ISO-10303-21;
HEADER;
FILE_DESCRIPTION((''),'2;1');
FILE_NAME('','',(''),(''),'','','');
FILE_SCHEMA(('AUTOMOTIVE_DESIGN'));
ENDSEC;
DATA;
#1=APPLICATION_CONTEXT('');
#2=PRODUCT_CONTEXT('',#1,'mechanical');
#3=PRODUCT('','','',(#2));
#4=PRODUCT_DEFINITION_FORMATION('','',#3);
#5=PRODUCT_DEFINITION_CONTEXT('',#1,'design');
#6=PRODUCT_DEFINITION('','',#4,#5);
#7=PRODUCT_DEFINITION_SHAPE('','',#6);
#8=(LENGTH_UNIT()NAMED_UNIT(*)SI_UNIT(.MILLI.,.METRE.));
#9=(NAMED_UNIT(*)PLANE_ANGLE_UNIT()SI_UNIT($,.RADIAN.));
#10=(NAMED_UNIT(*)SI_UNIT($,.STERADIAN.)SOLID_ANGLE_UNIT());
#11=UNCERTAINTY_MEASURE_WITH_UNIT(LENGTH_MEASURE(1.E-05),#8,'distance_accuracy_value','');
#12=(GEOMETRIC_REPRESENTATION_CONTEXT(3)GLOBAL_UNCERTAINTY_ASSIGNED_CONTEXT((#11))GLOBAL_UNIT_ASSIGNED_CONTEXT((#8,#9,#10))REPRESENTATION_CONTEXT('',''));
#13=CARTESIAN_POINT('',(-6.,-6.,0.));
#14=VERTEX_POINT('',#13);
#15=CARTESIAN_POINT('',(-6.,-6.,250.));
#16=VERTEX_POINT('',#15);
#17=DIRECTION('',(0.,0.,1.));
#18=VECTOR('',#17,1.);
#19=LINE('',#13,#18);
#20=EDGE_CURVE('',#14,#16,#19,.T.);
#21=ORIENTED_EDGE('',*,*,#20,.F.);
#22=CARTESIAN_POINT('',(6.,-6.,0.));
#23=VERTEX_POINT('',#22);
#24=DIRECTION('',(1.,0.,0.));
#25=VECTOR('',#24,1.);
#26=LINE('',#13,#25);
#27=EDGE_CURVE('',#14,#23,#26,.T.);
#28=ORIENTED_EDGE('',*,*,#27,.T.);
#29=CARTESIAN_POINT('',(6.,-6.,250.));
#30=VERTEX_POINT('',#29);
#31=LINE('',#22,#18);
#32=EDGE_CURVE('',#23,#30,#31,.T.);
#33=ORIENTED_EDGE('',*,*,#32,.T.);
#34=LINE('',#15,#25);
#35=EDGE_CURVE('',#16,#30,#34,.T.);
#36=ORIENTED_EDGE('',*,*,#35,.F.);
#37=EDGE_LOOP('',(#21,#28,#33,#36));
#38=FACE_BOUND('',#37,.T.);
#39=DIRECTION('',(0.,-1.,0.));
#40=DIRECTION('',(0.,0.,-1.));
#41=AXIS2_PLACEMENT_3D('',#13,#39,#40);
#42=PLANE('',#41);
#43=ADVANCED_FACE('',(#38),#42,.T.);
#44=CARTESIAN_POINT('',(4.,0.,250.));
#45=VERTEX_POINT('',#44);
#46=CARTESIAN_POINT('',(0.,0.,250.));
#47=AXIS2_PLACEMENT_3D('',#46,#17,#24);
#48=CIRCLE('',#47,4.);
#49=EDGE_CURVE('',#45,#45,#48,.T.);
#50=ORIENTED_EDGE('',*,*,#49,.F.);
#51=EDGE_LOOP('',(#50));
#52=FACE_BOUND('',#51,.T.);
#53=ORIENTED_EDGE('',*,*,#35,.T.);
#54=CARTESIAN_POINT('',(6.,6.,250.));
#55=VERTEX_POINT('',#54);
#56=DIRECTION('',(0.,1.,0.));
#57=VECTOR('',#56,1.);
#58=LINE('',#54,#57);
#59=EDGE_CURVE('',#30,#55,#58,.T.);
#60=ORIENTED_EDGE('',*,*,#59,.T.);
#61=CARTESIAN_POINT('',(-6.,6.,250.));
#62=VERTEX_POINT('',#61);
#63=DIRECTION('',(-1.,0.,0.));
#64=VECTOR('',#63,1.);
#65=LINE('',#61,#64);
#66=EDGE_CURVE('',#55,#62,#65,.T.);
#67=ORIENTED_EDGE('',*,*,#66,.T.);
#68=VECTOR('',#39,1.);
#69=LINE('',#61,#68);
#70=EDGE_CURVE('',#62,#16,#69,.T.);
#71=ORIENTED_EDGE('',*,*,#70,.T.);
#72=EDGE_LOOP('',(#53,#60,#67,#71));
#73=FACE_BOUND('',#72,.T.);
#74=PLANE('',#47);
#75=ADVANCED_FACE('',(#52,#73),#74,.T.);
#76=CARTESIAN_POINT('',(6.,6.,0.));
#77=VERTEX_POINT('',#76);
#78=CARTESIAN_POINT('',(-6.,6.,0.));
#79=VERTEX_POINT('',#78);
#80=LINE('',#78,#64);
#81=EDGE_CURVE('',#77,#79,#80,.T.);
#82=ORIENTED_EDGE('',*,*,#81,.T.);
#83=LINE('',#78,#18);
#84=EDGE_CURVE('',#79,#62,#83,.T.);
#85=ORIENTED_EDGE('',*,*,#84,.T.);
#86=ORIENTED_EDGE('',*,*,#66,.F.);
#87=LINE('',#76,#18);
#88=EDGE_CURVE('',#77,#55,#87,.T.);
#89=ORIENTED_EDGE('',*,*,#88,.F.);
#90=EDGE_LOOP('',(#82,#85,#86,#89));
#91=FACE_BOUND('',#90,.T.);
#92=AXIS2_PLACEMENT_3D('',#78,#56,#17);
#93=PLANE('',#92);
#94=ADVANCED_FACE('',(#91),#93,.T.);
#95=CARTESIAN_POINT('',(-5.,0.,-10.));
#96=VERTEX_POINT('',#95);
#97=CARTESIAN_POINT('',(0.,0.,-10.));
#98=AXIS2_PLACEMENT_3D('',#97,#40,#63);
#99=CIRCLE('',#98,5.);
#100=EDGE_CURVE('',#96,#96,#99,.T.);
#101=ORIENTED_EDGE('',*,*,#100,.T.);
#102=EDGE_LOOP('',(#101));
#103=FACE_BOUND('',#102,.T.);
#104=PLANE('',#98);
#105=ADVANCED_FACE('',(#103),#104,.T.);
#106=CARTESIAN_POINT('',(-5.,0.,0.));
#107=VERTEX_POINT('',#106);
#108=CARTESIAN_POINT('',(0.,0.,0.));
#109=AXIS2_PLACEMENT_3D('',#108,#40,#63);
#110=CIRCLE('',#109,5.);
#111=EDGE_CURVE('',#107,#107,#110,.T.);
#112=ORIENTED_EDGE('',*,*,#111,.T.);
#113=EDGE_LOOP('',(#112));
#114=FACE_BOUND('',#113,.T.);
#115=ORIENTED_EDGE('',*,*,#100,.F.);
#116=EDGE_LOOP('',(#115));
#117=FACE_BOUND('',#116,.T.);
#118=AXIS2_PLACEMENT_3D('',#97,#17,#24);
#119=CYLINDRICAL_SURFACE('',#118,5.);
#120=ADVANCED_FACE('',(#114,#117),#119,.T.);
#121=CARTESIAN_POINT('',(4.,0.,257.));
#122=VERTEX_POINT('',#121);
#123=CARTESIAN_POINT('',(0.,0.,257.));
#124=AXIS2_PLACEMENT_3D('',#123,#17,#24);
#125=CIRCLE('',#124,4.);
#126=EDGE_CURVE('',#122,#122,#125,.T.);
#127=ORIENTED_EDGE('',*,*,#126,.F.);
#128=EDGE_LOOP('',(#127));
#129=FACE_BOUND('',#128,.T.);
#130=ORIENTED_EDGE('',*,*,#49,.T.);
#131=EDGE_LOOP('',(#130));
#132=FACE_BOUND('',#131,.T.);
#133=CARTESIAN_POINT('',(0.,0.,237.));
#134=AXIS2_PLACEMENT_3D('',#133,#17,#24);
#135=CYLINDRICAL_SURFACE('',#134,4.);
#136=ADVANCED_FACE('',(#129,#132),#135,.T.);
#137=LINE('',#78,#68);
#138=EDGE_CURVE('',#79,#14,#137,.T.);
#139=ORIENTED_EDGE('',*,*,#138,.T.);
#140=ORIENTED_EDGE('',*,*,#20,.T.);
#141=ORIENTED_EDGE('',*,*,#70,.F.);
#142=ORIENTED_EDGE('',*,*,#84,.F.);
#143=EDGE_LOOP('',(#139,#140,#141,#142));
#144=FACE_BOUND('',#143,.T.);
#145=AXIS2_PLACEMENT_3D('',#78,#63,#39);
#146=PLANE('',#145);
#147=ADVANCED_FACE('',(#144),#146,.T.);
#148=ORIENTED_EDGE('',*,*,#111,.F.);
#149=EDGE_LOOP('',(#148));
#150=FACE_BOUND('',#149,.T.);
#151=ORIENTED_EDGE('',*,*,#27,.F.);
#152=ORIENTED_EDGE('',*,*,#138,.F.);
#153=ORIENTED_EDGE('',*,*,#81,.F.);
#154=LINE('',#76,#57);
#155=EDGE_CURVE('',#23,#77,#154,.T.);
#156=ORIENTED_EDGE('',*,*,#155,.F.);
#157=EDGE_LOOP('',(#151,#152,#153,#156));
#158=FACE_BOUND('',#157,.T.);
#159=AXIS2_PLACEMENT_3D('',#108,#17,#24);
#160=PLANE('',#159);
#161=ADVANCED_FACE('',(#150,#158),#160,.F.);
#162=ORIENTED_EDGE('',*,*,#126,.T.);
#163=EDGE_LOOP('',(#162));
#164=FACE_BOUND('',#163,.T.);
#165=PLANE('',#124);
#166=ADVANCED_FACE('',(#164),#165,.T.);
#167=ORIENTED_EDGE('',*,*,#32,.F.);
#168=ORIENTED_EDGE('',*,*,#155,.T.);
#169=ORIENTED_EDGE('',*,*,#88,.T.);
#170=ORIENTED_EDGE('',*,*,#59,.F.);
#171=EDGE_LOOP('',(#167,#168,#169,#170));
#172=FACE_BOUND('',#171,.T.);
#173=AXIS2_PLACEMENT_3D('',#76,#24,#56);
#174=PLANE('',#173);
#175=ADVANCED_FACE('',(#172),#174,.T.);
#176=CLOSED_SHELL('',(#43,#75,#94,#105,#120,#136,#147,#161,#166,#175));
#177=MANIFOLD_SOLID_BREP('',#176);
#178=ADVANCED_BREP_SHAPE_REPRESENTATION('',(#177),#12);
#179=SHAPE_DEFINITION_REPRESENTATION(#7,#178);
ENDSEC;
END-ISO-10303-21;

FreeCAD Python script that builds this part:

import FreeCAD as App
import Part
import Sketcher
Q = App.Units.Quantity


def add_polygon(sketch, points):
    """Adds a closed chain of lines whose ends are joined by coincident constraints."""
    first, n = sketch.GeometryCount, len(points)
    for a, b in zip(points, points[1:] + points[:1]):
        sketch.addGeometry(Part.LineSegment(App.Vector(*a, 0), App.Vector(*b, 0)), False)
    for i in range(n):
        sketch.addConstraint(Sketcher.Constraint("Coincident", first + i, 2, first + (i + 1) % n, 1))

doc = App.newDocument("Part")
params = doc.addObject("Spreadsheet::Sheet", "Params")
for row, (alias, value) in enumerate([
    ("sketch1_width", "5 mm"),
    ("sketch1_length", "5 mm"),
    ("pad1_length", "250 mm"),
    ("sketch2_diameter", "5 mm"),
    ("pad2_length", "10 mm"),
    ("sketch3_diameter", "10 mm"),
    ("pad3_length", "10 mm"),
    ("sketch4_width", "2 mm"),
    ("pocket1_length", "10 mm"),
    ("sketch5_diameter", "5 mm"),
    ("pad4_length", "5 mm"),
    ("sketch6_diameter", "5 mm"),
    ("pad5_length", "5 mm"),
    ("sketch7_diameter", "5 mm"),
    ("pocket2_length", "3 mm"),
    ("sketch8_diameter", "5 mm"),
    ("pocket3_length", "3 mm"),
    ("sketch9_diameter", "10 mm"),
    ("pad6_length", "10 mm"),
    ("sketch10_diameter", "5 mm"),
    ("pad7_length", "1 mm"),
    ("sketch11_width", "12 mm"),
    ("pad8_length", "250 mm"),
    ("sketch12_diameter", "8 mm"),
    ("pad9_length", "20 mm"),
], start=1):
    params.set(f"A{row}", alias)
    params.set(f"B{row}", "=" + value)
    params.setAlias(f"B{row}", alias)

body = doc.addObject("PartDesign::Body", "Body")

# Sketch on XY plane
sketch1 = doc.addObject("Sketcher::SketchObject", "Sketch")
body.addObject(sketch1)
sketch1.AttachmentSupport = (doc.XY_Plane, [""])
sketch1.MapMode = "FlatFace"
add_polygon(sketch1, [(5, 0), (2, 4), (-2, 4), (-5, 0), (-2, -4), (2, -4)])  # lines 0-5
sketch1.addConstraint(Sketcher.Constraint("Horizontal", 1))
sketch1.addConstraint(Sketcher.Constraint("Horizontal", 4))
sketch1.addConstraint(Sketcher.Constraint("Symmetric", 0, 2, 3, 2, -1, 1))
sketch1.addConstraint(Sketcher.Constraint("Symmetric", 2, 2, 5, 2, -1, 1))
sketch1.addConstraint(Sketcher.Constraint("PointOnObject", 2, 2, -1))
sketch1.addConstraint(Sketcher.Constraint("Parallel", 2, 5))
sketch1.addConstraint(Sketcher.Constraint("Vertical", 1, 2, 3, 2))
sketch1.addConstraint(Sketcher.Constraint("DistanceX", 1, 2, 1, 1, 5.0))
sketch1.addConstraint(Sketcher.Constraint("Angle", 0, Q("120 deg")))
sketch1.addConstraint(Sketcher.Constraint("Distance", 0, 5.0))
sketch1.setExpression("Constraints[13]", "Params.sketch1_width")
sketch1.setExpression("Constraints[15]", "Params.sketch1_length")
pad1 = doc.addObject("PartDesign::Pad", "Pad")
body.addObject(pad1)
pad1.Profile = sketch1
pad1.setExpression("Length", "Params.pad1_length")

# Sketch on XY plane
sketch2 = doc.addObject("Sketcher::SketchObject", "Sketch001")
body.addObject(sketch2)
sketch2.AttachmentSupport = (doc.XY_Plane, [""])
sketch2.MapMode = "FlatFace"
sketch2.AttachmentOffset = App.Placement(App.Vector(0, 0, 250), App.Rotation())
sketch2.addGeometry(Part.Circle(App.Vector(0, 0, 0), App.Vector(0, 0, 1), 2.5), False)
sketch2.addConstraint(Sketcher.Constraint("Coincident", 0, 3, -1, 1))
sketch2.addConstraint(Sketcher.Constraint("Diameter", 0, 5.0))
sketch2.setExpression("Constraints[1]", "Params.sketch2_diameter")
pad2 = doc.addObject("PartDesign::Pad", "Pad001")
body.addObject(pad2)
pad2.Profile = sketch2
pad2.setExpression("Length", "Params.pad2_length")

# Sketch on XY plane
sketch3 = doc.addObject("Sketcher::SketchObject", "Sketch002")
body.addObject(sketch3)
sketch3.AttachmentSupport = (doc.XY_Plane, [""])
sketch3.MapMode = "FlatFace"
sketch3.addGeometry(Part.Circle(App.Vector(0, 0, 0), App.Vector(0, 0, 1), 5), False)
sketch3.addConstraint(Sketcher.Constraint("Coincident", 0, 3, -1, 1))
sketch3.addConstraint(Sketcher.Constraint("Diameter", 0, 10.0))
sketch3.setExpression("Constraints[1]", "Params.sketch3_diameter")
pad3 = doc.addObject("PartDesign::Pad", "Pad002")
body.addObject(pad3)
pad3.Profile = sketch3
pad3.setExpression("Length", "Params.pad3_length")
pad3.Reversed = True

# Sketch on XY plane
sketch4 = doc.addObject("Sketcher::SketchObject", "Sketch003")
body.addObject(sketch4)
sketch4.AttachmentSupport = (doc.XY_Plane, [""])
sketch4.MapMode = "FlatFace"
sketch4.AttachmentOffset = App.Placement(App.Vector(0, 0, 260), App.Rotation())
add_polygon(sketch4, [(-1, 3.3), (-1, 1.5), (1, 1.5), (1, 3.3)])  # lines 0-3
sketch4.addConstraint(Sketcher.Constraint("Vertical", 0))
sketch4.addConstraint(Sketcher.Constraint("Horizontal", 1))
sketch4.addConstraint(Sketcher.Constraint("Vertical", 2))
sketch4.addConstraint(Sketcher.Constraint("Horizontal", 3))
sketch4.addConstraint(Sketcher.Constraint("DistanceX", 1, 1, 1, 2, 2.0))
sketch4.addConstraint(Sketcher.Constraint("DistanceX", 0, 2, -1, 1, 1.0))
sketch4.addConstraint(Sketcher.Constraint("DistanceY", -1, 1, 0, 2, 1.5))
sketch4.addConstraint(Sketcher.Constraint("DistanceY", 0, 2, 0, 1, 1.835574))
sketch4.setExpression("Constraints[8]", "Params.sketch4_width")
pocket1 = doc.addObject("PartDesign::Pocket", "Pocket")
body.addObject(pocket1)
pocket1.Profile = sketch4
pocket1.setExpression("Length", "Params.pocket1_length")

# Sketch on XY plane
sketch5 = doc.addObject("Sketcher::SketchObject", "Sketch004")
body.addObject(sketch5)
sketch5.AttachmentSupport = (doc.XY_Plane, [""])
sketch5.MapMode = "FlatFace"
sketch5.AttachmentOffset = App.Placement(App.Vector(0, 0, 255), App.Rotation())
sketch5.addGeometry(Part.Circle(App.Vector(0, 0, 0), App.Vector(0, 0, 1), 2.5), False)
sketch5.addConstraint(Sketcher.Constraint("Coincident", 0, 3, -1, 1))
sketch5.addConstraint(Sketcher.Constraint("Diameter", 0, 5.0))
sketch5.setExpression("Constraints[1]", "Params.sketch5_diameter")
pad4 = doc.addObject("PartDesign::Pad", "Pad003")
body.addObject(pad4)
pad4.Profile = sketch5
pad4.setExpression("Length", "Params.pad4_length")

# Sketch on XY plane
sketch6 = doc.addObject("Sketcher::SketchObject", "Sketch005")
body.addObject(sketch6)
sketch6.AttachmentSupport = (doc.XY_Plane, [""])
sketch6.MapMode = "FlatFace"
sketch6.AttachmentOffset = App.Placement(App.Vector(0, 0, -10), App.Rotation())
sketch6.addGeometry(Part.Circle(App.Vector(0, 0, 0), App.Vector(0, 0, 1), 2.5), False)
sketch6.addConstraint(Sketcher.Constraint("Coincident", 0, 3, -1, 1))
sketch6.addConstraint(Sketcher.Constraint("Diameter", 0, 5.0))
sketch6.setExpression("Constraints[1]", "Params.sketch6_diameter")
pad5 = doc.addObject("PartDesign::Pad", "Pad004")
body.addObject(pad5)
pad5.Profile = sketch6
pad5.setExpression("Length", "Params.pad5_length")

# Sketch on XY plane
sketch7 = doc.addObject("Sketcher::SketchObject", "Sketch006")
body.addObject(sketch7)
sketch7.AttachmentSupport = (doc.XY_Plane, [""])
sketch7.MapMode = "FlatFace"
sketch7.AttachmentOffset = App.Placement(App.Vector(0, 0, -10), App.Rotation())
sketch7.addGeometry(Part.Circle(App.Vector(0, 0, 0), App.Vector(0, 0, 1), 2.5), False)
sketch7.addConstraint(Sketcher.Constraint("Coincident", 0, 3, -1, 1))
sketch7.addConstraint(Sketcher.Constraint("Diameter", 0, 5.0))
sketch7.setExpression("Constraints[1]", "Params.sketch7_diameter")
pocket2 = doc.addObject("PartDesign::Pocket", "Pocket001")
body.addObject(pocket2)
pocket2.Profile = sketch7
pocket2.setExpression("Length", "Params.pocket2_length")
pocket2.Reversed = True

# Sketch on XY plane
sketch8 = doc.addObject("Sketcher::SketchObject", "Sketch007")
body.addObject(sketch8)
sketch8.AttachmentSupport = (doc.XY_Plane, [""])
sketch8.MapMode = "FlatFace"
sketch8.AttachmentOffset = App.Placement(App.Vector(0, 0, 257), App.Rotation())
sketch8.addGeometry(Part.Circle(App.Vector(0, 0, 0), App.Vector(0, 0, 1), 2.5), False)
sketch8.addConstraint(Sketcher.Constraint("Coincident", 0, 3, -1, 1))
sketch8.addConstraint(Sketcher.Constraint("Diameter", 0, 5.0))
sketch8.setExpression("Constraints[1]", "Params.sketch8_diameter")
pocket3 = doc.addObject("PartDesign::Pocket", "Pocket002")
body.addObject(pocket3)
pocket3.Profile = sketch8
pocket3.setExpression("Length", "Params.pocket3_length")
pocket3.Reversed = True

# Sketch on XY plane
sketch9 = doc.addObject("Sketcher::SketchObject", "Sketch008")
body.addObject(sketch9)
sketch9.AttachmentSupport = (doc.XY_Plane, [""])
sketch9.MapMode = "FlatFace"
sketch9.addGeometry(Part.Circle(App.Vector(0, 0, 0), App.Vector(0, 0, 1), 5), False)
sketch9.addConstraint(Sketcher.Constraint("Coincident", 0, 3, -1, 1))
sketch9.addConstraint(Sketcher.Constraint("Diameter", 0, 10.0))
sketch9.setExpression("Constraints[1]", "Params.sketch9_diameter")
pad6 = doc.addObject("PartDesign::Pad", "Pad005")
body.addObject(pad6)
pad6.Profile = sketch9
pad6.setExpression("Length", "Params.pad6_length")
pad6.Reversed = True

# Sketch on XY plane
sketch10 = doc.addObject("Sketcher::SketchObject", "Sketch009")
body.addObject(sketch10)
sketch10.AttachmentSupport = (doc.XY_Plane, [""])
sketch10.MapMode = "FlatFace"
sketch10.AttachmentOffset = App.Placement(App.Vector(0, 0, 250), App.Rotation())
sketch10.addGeometry(Part.Circle(App.Vector(0, 0, 0), App.Vector(0, 0, 1), 2.5), False)
sketch10.addConstraint(Sketcher.Constraint("Coincident", 0, 3, -1, 1))
sketch10.addConstraint(Sketcher.Constraint("Diameter", 0, 5.0))
sketch10.setExpression("Constraints[1]", "Params.sketch10_diameter")
pad7 = doc.addObject("PartDesign::Pad", "Pad006")
body.addObject(pad7)
pad7.Profile = sketch10
pad7.setExpression("Length", "Params.pad7_length")

# Sketch on XY plane
sketch11 = doc.addObject("Sketcher::SketchObject", "Sketch010")
body.addObject(sketch11)
sketch11.AttachmentSupport = (doc.XY_Plane, [""])
sketch11.MapMode = "FlatFace"
sketch11.AttachmentOffset = App.Placement(App.Vector(0, 0, 250), App.Rotation())
add_polygon(sketch11, [(-6, 6), (-6, -6), (6, -6), (6, 6)])  # lines 0-3
sketch11.addConstraint(Sketcher.Constraint("Vertical", 0))
sketch11.addConstraint(Sketcher.Constraint("Horizontal", 1))
sketch11.addConstraint(Sketcher.Constraint("Vertical", 2))
sketch11.addConstraint(Sketcher.Constraint("Horizontal", 3))
sketch11.addConstraint(Sketcher.Constraint("Symmetric", 0, 2, 2, 2, -1, 1))
sketch11.addConstraint(Sketcher.Constraint("Equal", 3, 0))
sketch11.addConstraint(Sketcher.Constraint("DistanceX", 1, 1, 1, 2, 12.0))
sketch11.setExpression("Constraints[10]", "Params.sketch11_width")
pad8 = doc.addObject("PartDesign::Pad", "Pad007")
body.addObject(pad8)
pad8.Profile = sketch11
pad8.setExpression("Length", "Params.pad8_length")
pad8.Reversed = True

# Sketch on XY plane
sketch12 = doc.addObject("Sketcher::SketchObject", "Sketch011")
body.addObject(sketch12)
sketch12.AttachmentSupport = (doc.XY_Plane, [""])
sketch12.MapMode = "FlatFace"
sketch12.AttachmentOffset = App.Placement(App.Vector(0, 0, 257), App.Rotation())
sketch12.addGeometry(Part.Circle(App.Vector(0, 0, 0), App.Vector(0, 0, 1), 4), False)
sketch12.addConstraint(Sketcher.Constraint("Coincident", 0, 3, -1, 1))
sketch12.addConstraint(Sketcher.Constraint("Diameter", 0, 8.0))
sketch12.setExpression("Constraints[1]", "Params.sketch12_diameter")
pad9 = doc.addObject("PartDesign::Pad", "Pad008")
body.addObject(pad9)
pad9.Profile = sketch12
pad9.setExpression("Length", "Params.pad9_length")
pad9.Reversed = True

doc.recompute()
